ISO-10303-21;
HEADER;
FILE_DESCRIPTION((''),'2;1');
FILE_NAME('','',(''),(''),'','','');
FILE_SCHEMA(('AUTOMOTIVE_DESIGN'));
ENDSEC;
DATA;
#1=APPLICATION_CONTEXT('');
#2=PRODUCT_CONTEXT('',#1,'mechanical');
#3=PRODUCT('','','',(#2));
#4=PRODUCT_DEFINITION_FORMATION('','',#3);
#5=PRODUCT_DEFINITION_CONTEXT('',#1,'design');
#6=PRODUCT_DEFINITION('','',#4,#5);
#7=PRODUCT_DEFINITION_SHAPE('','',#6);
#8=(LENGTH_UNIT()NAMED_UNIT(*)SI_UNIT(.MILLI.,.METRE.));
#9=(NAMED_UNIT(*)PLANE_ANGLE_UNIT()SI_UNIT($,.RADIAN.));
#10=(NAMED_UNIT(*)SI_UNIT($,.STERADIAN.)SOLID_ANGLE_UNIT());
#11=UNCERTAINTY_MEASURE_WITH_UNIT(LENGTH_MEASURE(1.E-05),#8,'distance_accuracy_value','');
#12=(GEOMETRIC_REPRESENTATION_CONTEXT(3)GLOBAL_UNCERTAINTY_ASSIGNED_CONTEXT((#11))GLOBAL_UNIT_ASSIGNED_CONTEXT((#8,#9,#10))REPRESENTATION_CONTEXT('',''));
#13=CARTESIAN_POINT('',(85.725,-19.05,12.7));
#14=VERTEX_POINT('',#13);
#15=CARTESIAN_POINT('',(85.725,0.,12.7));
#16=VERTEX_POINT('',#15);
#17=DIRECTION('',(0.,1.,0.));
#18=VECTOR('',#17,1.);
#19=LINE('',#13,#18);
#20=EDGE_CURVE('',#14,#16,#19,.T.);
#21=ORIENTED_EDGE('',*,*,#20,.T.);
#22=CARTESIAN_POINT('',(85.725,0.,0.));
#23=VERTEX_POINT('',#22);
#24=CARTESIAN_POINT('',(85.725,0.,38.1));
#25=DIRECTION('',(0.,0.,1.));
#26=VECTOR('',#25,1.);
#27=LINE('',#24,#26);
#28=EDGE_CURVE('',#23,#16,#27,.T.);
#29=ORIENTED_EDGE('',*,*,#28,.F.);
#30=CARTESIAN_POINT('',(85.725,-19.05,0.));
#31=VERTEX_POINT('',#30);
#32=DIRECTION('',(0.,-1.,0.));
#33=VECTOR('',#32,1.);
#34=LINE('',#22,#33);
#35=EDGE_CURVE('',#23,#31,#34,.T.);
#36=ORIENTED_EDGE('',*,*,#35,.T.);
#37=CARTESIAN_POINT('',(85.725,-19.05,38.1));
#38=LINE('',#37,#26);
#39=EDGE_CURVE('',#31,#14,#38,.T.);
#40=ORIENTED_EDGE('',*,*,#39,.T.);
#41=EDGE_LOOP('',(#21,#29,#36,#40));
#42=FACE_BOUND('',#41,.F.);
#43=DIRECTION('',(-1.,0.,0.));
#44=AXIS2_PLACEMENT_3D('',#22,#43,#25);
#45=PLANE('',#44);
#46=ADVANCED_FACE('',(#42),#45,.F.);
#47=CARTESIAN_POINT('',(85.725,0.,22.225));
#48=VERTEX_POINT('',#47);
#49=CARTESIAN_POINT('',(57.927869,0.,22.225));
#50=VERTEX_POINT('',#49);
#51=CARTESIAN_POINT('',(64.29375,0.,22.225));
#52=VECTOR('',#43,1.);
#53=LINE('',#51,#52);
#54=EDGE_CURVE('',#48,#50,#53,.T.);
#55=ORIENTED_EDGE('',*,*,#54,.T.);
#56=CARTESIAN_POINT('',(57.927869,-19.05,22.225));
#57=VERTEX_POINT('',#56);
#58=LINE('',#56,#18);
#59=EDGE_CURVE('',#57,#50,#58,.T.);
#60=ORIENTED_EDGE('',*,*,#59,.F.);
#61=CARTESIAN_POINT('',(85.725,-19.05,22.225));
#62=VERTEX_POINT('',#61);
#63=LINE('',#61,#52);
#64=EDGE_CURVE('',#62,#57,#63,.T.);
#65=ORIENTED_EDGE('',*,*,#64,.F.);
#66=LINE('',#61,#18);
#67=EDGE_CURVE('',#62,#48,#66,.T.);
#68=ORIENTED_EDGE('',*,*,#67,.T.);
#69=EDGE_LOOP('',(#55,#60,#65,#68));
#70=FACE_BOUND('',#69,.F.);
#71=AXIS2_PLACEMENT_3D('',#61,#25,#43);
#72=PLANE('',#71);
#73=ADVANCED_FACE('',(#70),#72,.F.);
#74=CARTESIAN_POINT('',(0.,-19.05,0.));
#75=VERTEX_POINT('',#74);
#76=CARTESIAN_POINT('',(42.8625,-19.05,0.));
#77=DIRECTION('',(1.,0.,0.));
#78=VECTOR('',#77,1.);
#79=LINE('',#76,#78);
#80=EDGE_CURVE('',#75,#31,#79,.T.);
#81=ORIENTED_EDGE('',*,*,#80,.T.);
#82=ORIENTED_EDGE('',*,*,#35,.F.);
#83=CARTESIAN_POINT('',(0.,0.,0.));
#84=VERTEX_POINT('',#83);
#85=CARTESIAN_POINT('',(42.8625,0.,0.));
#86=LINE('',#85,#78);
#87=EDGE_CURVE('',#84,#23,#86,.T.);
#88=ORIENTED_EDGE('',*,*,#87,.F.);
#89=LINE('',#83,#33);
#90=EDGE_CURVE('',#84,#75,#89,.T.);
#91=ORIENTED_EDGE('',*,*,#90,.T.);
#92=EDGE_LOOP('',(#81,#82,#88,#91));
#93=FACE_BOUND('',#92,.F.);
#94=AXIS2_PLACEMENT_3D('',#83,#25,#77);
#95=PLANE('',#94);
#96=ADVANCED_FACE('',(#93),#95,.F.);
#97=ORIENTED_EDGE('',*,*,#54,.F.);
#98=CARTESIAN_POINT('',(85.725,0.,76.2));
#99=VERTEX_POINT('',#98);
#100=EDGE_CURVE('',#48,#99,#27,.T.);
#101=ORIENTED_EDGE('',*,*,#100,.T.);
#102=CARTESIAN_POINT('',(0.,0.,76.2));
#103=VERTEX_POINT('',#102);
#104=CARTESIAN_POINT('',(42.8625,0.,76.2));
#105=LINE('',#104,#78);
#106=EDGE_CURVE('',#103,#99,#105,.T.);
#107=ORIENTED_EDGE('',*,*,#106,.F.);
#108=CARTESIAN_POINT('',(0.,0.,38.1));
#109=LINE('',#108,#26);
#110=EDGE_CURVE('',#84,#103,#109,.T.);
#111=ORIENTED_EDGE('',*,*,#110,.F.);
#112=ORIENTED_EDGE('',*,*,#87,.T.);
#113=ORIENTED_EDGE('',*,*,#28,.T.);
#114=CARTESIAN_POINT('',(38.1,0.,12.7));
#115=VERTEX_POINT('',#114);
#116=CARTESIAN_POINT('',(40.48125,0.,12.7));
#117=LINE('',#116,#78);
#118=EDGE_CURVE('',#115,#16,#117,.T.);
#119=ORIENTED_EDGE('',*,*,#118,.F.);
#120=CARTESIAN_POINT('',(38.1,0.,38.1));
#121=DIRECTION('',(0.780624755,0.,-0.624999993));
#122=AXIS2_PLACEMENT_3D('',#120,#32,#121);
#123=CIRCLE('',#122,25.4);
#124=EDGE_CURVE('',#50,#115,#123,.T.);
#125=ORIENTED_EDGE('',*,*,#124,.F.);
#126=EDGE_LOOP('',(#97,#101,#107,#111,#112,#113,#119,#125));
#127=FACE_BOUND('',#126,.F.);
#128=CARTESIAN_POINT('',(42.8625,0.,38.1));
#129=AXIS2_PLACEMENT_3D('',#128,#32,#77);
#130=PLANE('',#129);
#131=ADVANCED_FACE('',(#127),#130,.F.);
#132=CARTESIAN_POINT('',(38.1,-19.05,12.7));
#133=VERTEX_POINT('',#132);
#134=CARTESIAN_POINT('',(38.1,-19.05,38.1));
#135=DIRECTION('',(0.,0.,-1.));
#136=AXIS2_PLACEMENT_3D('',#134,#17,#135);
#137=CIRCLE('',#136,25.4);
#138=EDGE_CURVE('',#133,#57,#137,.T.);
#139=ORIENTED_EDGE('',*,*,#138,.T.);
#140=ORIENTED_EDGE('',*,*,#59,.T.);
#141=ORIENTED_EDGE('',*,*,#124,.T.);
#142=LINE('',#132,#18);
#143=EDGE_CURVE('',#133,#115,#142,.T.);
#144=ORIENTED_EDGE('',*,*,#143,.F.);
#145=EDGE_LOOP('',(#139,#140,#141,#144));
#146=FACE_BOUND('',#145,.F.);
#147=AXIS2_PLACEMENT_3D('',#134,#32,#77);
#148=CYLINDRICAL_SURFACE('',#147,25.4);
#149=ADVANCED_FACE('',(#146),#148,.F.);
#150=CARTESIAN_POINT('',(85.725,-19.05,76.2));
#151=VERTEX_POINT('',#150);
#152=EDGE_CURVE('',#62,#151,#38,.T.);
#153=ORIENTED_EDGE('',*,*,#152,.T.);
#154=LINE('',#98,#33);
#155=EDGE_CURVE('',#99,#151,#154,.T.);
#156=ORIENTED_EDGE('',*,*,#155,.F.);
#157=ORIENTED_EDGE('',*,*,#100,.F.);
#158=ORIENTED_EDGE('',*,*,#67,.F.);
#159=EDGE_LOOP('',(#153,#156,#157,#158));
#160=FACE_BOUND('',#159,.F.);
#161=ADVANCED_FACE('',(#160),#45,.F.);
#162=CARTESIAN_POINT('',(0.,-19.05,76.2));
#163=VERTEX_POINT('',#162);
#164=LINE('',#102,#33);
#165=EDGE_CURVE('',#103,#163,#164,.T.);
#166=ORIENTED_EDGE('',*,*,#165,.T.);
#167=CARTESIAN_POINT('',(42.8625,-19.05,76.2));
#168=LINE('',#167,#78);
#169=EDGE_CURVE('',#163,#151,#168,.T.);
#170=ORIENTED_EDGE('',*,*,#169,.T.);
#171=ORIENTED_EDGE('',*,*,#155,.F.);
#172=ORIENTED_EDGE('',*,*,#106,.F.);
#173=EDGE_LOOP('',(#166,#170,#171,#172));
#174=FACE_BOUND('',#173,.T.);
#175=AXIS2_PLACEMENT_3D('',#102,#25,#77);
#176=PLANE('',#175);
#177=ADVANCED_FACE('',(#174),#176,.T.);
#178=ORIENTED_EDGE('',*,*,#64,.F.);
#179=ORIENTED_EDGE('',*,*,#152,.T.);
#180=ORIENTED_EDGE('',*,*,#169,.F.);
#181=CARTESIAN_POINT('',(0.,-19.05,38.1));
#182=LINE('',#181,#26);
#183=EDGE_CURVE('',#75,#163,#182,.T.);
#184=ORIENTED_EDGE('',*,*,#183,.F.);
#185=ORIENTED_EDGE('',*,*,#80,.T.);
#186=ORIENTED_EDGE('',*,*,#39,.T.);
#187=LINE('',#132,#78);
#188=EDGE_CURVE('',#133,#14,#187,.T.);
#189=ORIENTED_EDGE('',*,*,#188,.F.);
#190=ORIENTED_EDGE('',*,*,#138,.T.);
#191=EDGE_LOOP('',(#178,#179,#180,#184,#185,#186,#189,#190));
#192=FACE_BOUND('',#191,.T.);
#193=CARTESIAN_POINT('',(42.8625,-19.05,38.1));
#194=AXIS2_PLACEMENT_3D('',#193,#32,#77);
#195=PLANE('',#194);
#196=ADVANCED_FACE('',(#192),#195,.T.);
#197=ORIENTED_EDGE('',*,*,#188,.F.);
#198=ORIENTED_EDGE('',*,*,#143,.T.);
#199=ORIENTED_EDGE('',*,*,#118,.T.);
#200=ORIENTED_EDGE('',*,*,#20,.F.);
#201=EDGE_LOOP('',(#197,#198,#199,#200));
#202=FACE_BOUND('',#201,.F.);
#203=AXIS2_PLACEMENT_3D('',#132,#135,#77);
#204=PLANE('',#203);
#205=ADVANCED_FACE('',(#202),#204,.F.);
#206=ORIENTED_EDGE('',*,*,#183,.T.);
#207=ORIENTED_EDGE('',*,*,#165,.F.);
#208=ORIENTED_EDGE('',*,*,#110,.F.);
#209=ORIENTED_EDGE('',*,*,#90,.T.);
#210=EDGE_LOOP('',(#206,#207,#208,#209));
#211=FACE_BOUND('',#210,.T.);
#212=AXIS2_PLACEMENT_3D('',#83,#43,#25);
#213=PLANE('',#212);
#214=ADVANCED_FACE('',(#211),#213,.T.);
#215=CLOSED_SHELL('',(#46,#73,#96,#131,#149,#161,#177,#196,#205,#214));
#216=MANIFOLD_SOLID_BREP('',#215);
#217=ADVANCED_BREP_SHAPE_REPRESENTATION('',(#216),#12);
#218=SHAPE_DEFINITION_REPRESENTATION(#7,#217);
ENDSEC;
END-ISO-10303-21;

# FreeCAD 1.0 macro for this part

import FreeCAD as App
import Part
import Sketcher

V = App.Vector
Q = App.Units.Quantity


def add_polygon(sketch, points):
    """Adds a closed chain of lines whose ends are joined by coincident constraints."""
    first, n = sketch.GeometryCount, len(points)
    for a, b in zip(points, points[1:] + points[:1]):
        sketch.addGeometry(Part.LineSegment(App.Vector(*a, 0), App.Vector(*b, 0)), False)
    for i in range(n):
        sketch.addConstraint(Sketcher.Constraint("Coincident", first + i, 2, first + (i + 1) % n, 1))

doc = App.newDocument("Part")
body = doc.addObject("PartDesign::Body", "Body")

# Sketch on XZ plane
sketch1 = body.newObject("Sketcher::SketchObject", "Sketch")
sketch1.AttachmentSupport = (doc.getObject("XZ_Plane"), [""])
sketch1.MapMode = "FlatFace"
add_polygon(sketch1, [(0, 76), (0, 0), (86, 0), (86, 76)])  # lines 0-3
sketch1.addConstraint([
    Sketcher.Constraint("Vertical", 0),
    Sketcher.Constraint("Horizontal", 1),
    Sketcher.Constraint("Vertical", 2),
    Sketcher.Constraint("Horizontal", 3),
    Sketcher.Constraint("Coincident", 0, 2, -1, 1),
    Sketcher.Constraint("DistanceY", 0, 2, 0, 1, Q("3 in")),
    Sketcher.Constraint("DistanceX", 1, 1, 1, 2, Q("3.375 in")),
])
pad1 = body.newObject("PartDesign::Pad", "Pad")
pad1.Profile = sketch1
pad1.Length = Q("0.75 in")

# Sketch on XZ plane
sketch2 = body.newObject("Sketcher::SketchObject", "Sketch001")
sketch2.AttachmentSupport = (doc.getObject("XZ_Plane"), [""])
sketch2.MapMode = "FlatFace"
sketch2.AttachmentOffset = App.Placement(V(0, 0, 0.75 * 25.4), App.Rotation())
sketch2.addGeometry(Part.Circle(V(38, 38, 0), V(0, 0, 1), 25), False)
sketch2.addConstraint([
    Sketcher.Constraint("Diameter", 0, Q("2 in")),
    Sketcher.Constraint("DistanceX", -1, 1, 0, 3, Q("1.5 in")),
    Sketcher.Constraint("DistanceY", -1, 1, 0, 3, Q("1.5 in")),
])
pocket1 = body.newObject("PartDesign::Pocket", "Pocket")
pocket1.Profile = sketch2
pocket1.Length = Q("1 in")

# Sketch on XZ plane
sketch3 = body.newObject("Sketcher::SketchObject", "Sketch002")
sketch3.AttachmentSupport = (doc.getObject("XZ_Plane"), [""])
sketch3.MapMode = "FlatFace"
sketch3.AttachmentOffset = App.Placement(V(0, 0, 0.75 * 25.4), App.Rotation())
add_polygon(sketch3, [(86, 13), (86, 22), (58, 22), (38, 13)])  # lines 0-3
sketch3.addConstraint([
    Sketcher.Constraint("Vertical", 0),
    Sketcher.Constraint("Horizontal", 1),
    Sketcher.Constraint("Horizontal", 3),
    Sketcher.Constraint("DistanceX", -1, 1, 2, 2, Q("1.5 in")),
    Sketcher.Constraint("DistanceY", -1, 1, 2, 2, Q("0.5 in")),
    Sketcher.Constraint("DistanceX", 3, 1, 3, 2, Q("1.875 in")),
    Sketcher.Constraint("DistanceY", 0, 1, 0, 2, Q("0.375 in")),
    Sketcher.Constraint("DistanceX", 1, 2, 1, 1, 27.797131),
])
pocket2 = body.newObject("PartDesign::Pocket", "Pocket001")
pocket2.Profile = sketch3
pocket2.Length = Q("1 in")

doc.recompute()
